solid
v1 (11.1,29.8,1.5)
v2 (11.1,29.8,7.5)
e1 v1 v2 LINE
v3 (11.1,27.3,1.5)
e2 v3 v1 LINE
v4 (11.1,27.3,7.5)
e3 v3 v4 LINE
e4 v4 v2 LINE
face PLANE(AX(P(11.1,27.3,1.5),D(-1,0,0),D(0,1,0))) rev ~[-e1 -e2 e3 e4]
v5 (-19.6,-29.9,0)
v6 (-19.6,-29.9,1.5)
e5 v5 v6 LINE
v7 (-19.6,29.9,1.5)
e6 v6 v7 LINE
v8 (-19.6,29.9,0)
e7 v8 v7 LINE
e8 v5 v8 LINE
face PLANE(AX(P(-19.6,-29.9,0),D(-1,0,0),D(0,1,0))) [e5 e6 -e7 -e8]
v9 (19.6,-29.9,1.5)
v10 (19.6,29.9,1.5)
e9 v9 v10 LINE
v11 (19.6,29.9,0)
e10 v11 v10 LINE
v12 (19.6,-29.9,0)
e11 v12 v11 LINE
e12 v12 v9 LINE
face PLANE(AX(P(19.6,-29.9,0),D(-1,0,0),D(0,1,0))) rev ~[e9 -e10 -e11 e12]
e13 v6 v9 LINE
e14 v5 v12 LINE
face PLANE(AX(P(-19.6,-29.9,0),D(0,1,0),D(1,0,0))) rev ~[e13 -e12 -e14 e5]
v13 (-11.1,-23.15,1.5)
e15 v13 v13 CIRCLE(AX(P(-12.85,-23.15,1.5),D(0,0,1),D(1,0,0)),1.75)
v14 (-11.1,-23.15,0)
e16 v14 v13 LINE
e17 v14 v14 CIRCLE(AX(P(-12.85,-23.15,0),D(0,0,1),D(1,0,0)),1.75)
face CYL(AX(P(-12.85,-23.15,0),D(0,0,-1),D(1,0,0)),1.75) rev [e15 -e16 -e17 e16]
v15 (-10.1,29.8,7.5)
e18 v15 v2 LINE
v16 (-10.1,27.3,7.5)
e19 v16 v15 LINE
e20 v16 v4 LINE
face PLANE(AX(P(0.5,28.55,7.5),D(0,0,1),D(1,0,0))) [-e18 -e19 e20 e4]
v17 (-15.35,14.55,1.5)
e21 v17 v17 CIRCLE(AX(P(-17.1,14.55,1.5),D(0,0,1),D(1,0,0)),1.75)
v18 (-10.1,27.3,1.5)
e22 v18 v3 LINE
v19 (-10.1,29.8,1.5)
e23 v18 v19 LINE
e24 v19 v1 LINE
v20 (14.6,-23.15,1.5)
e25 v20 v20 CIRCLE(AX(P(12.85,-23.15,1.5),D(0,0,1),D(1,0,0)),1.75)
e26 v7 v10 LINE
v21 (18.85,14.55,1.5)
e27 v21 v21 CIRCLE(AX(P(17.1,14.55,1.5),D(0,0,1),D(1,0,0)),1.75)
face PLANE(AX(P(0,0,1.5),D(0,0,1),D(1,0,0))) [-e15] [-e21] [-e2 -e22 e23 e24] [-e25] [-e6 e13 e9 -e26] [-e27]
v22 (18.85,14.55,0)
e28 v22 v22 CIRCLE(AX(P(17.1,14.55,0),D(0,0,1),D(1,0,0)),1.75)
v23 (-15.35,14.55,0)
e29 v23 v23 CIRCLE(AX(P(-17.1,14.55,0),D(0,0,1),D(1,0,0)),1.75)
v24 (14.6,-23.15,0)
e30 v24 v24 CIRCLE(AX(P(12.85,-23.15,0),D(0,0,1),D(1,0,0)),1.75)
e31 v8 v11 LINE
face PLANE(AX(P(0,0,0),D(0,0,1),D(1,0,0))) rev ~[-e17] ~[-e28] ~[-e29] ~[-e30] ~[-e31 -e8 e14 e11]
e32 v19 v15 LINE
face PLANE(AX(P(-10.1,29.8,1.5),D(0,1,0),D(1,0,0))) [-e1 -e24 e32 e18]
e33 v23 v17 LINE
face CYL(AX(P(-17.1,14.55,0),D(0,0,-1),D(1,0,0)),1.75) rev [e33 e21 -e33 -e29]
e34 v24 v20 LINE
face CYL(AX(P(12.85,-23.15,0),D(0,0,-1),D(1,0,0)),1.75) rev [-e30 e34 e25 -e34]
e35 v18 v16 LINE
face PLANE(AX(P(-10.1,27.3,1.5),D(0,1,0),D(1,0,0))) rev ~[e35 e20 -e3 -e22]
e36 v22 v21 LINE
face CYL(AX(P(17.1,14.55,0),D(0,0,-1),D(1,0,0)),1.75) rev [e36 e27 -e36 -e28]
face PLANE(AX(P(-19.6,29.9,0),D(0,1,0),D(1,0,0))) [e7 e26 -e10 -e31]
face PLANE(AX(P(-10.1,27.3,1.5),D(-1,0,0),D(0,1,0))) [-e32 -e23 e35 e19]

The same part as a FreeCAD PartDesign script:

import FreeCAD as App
import Part
import Sketcher

V = App.Vector

doc = App.newDocument("Part")
body = doc.addObject("PartDesign::Body", "Body")

# Sketch on XY plane
sketch1 = body.newObject("Sketcher::SketchObject", "Sketch")
sketch1.AttachmentSupport = (doc.getObject("XY_Plane"), [""])
sketch1.MapMode = "FlatFace"
sketch1.addGeometry(Part.LineSegment(V(-19.6, 29.9, 0), V(-19.6, -29.9, 0)), False)
sketch1.addGeometry(Part.LineSegment(V(-19.6, -29.9, 0), V(19.6, -29.9, 0)), False)
sketch1.addGeometry(Part.LineSegment(V(19.6, -29.9, 0), V(19.6, 29.9, 0)), False)
sketch1.addGeometry(Part.LineSegment(V(19.6, 29.9, 0), V(-19.6, 29.9, 0)), False)
sketch1.addGeometry(Part.Circle(V(-12.8, -23.1, 0), V(0, 0, 1), 1.8), False)
sketch1.addGeometry(Part.Circle(V(12.8, -23.1, 0), V(0, 0, 1), 1.8), False)
sketch1.addGeometry(Part.Circle(V(-17.1, 14.6, 0), V(0, 0, 1), 1.8), False)
sketch1.addGeometry(Part.Circle(V(17.1, 14.6, 0), V(0, 0, 1), 1.8), False)
sketch1.addConstraint(Sketcher.Constraint("Coincident", 0, 2, 1, 1))
sketch1.addConstraint(Sketcher.Constraint("Coincident", 1, 2, 2, 1))
sketch1.addConstraint(Sketcher.Constraint("Coincident", 2, 2, 3, 1))
sketch1.addConstraint(Sketcher.Constraint("Coincident", 3, 2, 0, 1))
sketch1.addConstraint(Sketcher.Constraint("Vertical", 0))
sketch1.addConstraint(Sketcher.Constraint("Horizontal", 1))
sketch1.addConstraint(Sketcher.Constraint("Vertical", 2))
sketch1.addConstraint(Sketcher.Constraint("Horizontal", 3))
sketch1.addConstraint(Sketcher.Constraint("Equal", 4, 5))
sketch1.addConstraint(Sketcher.Constraint("Equal", 5, 6))
sketch1.addConstraint(Sketcher.Constraint("Equal", 6, 7))
sketch1.addConstraint(Sketcher.Constraint("Symmetric", 0, 2, 2, 2, -1, 1))
sketch1.addConstraint(Sketcher.Constraint("Symmetric", 4, 3, 5, 3, -2))
sketch1.addConstraint(Sketcher.Constraint("Symmetric", 6, 3, 7, 3, -2))
sketch1.addConstraint(Sketcher.Constraint("Diameter", 4, 3.5))
sketch1.addConstraint(Sketcher.Constraint("DistanceX", 1, 1, 1, 2, 39.2))
sketch1.addConstraint(Sketcher.Constraint("DistanceY", 0, 2, 0, 1, 59.8))
sketch1.addConstraint(Sketcher.Constraint("DistanceX", 6, 3, -1, 1, 17.1))
sketch1.addConstraint(Sketcher.Constraint("DistanceX", 4, 3, 5, 3, 25.7))
sketch1.addConstraint(Sketcher.Constraint("DistanceY", 4, 3, 6, 3, 37.7))
sketch1.addConstraint(Sketcher.Constraint("DistanceY", 4, 3, -1, 1, 23.15))
pad1 = body.newObject("PartDesign::Pad", "Pad")
pad1.Profile = sketch1
pad1.Length = 1.5

# Sketch on XY plane
sketch2 = body.newObject("Sketcher::SketchObject", "Sketch001")
sketch2.AttachmentSupport = (doc.getObject("XY_Plane"), [""])
sketch2.MapMode = "FlatFace"
sketch2.AttachmentOffset = App.Placement(V(0, 0, 1.5), App.Rotation())
sketch2.addGeometry(Part.LineSegment(V(-10.1, 29.8, 0), V(-10.1, 27.3, 0)), False)
sketch2.addGeometry(Part.LineSegment(V(-10.1, 27.3, 0), V(11.1, 27.3, 0)), False)
sketch2.addGeometry(Part.LineSegment(V(11.1, 27.3, 0), V(11.1, 29.8, 0)), False)
sketch2.addGeometry(Part.LineSegment(V(11.1, 29.8, 0), V(-10.1, 29.8, 0)), False)
sketch2.addConstraint(Sketcher.Constraint("Coincident", 0, 2, 1, 1))
sketch2.addConstraint(Sketcher.Constraint("Coincident", 1, 2, 2, 1))
sketch2.addConstraint(Sketcher.Constraint("Coincident", 2, 2, 3, 1))
sketch2.addConstraint(Sketcher.Constraint("Coincident", 3, 2, 0, 1))
sketch2.addConstraint(Sketcher.Constraint("Vertical", 0))
sketch2.addConstraint(Sketcher.Constraint("Horizontal", 1))
sketch2.addConstraint(Sketcher.Constraint("Vertical", 2))
sketch2.addConstraint(Sketcher.Constraint("Horizontal", 3))
sketch2.addConstraint(Sketcher.Constraint("DistanceX", 1, 1, 1, 2, 21.2))
sketch2.addConstraint(Sketcher.Constraint("DistanceY", 0, 2, 0, 1, 2.5))
sketch2.addConstraint(Sketcher.Constraint("DistanceX", 0, 2, -1, 1, 10.1))
sketch2.addConstraint(Sketcher.Constraint("DistanceY", -1, 1, 0, 2, 27.3))
pad2 = body.newObject("PartDesign::Pad", "Pad001")
pad2.Profile = sketch2
pad2.Length = 6

doc.recompute()
